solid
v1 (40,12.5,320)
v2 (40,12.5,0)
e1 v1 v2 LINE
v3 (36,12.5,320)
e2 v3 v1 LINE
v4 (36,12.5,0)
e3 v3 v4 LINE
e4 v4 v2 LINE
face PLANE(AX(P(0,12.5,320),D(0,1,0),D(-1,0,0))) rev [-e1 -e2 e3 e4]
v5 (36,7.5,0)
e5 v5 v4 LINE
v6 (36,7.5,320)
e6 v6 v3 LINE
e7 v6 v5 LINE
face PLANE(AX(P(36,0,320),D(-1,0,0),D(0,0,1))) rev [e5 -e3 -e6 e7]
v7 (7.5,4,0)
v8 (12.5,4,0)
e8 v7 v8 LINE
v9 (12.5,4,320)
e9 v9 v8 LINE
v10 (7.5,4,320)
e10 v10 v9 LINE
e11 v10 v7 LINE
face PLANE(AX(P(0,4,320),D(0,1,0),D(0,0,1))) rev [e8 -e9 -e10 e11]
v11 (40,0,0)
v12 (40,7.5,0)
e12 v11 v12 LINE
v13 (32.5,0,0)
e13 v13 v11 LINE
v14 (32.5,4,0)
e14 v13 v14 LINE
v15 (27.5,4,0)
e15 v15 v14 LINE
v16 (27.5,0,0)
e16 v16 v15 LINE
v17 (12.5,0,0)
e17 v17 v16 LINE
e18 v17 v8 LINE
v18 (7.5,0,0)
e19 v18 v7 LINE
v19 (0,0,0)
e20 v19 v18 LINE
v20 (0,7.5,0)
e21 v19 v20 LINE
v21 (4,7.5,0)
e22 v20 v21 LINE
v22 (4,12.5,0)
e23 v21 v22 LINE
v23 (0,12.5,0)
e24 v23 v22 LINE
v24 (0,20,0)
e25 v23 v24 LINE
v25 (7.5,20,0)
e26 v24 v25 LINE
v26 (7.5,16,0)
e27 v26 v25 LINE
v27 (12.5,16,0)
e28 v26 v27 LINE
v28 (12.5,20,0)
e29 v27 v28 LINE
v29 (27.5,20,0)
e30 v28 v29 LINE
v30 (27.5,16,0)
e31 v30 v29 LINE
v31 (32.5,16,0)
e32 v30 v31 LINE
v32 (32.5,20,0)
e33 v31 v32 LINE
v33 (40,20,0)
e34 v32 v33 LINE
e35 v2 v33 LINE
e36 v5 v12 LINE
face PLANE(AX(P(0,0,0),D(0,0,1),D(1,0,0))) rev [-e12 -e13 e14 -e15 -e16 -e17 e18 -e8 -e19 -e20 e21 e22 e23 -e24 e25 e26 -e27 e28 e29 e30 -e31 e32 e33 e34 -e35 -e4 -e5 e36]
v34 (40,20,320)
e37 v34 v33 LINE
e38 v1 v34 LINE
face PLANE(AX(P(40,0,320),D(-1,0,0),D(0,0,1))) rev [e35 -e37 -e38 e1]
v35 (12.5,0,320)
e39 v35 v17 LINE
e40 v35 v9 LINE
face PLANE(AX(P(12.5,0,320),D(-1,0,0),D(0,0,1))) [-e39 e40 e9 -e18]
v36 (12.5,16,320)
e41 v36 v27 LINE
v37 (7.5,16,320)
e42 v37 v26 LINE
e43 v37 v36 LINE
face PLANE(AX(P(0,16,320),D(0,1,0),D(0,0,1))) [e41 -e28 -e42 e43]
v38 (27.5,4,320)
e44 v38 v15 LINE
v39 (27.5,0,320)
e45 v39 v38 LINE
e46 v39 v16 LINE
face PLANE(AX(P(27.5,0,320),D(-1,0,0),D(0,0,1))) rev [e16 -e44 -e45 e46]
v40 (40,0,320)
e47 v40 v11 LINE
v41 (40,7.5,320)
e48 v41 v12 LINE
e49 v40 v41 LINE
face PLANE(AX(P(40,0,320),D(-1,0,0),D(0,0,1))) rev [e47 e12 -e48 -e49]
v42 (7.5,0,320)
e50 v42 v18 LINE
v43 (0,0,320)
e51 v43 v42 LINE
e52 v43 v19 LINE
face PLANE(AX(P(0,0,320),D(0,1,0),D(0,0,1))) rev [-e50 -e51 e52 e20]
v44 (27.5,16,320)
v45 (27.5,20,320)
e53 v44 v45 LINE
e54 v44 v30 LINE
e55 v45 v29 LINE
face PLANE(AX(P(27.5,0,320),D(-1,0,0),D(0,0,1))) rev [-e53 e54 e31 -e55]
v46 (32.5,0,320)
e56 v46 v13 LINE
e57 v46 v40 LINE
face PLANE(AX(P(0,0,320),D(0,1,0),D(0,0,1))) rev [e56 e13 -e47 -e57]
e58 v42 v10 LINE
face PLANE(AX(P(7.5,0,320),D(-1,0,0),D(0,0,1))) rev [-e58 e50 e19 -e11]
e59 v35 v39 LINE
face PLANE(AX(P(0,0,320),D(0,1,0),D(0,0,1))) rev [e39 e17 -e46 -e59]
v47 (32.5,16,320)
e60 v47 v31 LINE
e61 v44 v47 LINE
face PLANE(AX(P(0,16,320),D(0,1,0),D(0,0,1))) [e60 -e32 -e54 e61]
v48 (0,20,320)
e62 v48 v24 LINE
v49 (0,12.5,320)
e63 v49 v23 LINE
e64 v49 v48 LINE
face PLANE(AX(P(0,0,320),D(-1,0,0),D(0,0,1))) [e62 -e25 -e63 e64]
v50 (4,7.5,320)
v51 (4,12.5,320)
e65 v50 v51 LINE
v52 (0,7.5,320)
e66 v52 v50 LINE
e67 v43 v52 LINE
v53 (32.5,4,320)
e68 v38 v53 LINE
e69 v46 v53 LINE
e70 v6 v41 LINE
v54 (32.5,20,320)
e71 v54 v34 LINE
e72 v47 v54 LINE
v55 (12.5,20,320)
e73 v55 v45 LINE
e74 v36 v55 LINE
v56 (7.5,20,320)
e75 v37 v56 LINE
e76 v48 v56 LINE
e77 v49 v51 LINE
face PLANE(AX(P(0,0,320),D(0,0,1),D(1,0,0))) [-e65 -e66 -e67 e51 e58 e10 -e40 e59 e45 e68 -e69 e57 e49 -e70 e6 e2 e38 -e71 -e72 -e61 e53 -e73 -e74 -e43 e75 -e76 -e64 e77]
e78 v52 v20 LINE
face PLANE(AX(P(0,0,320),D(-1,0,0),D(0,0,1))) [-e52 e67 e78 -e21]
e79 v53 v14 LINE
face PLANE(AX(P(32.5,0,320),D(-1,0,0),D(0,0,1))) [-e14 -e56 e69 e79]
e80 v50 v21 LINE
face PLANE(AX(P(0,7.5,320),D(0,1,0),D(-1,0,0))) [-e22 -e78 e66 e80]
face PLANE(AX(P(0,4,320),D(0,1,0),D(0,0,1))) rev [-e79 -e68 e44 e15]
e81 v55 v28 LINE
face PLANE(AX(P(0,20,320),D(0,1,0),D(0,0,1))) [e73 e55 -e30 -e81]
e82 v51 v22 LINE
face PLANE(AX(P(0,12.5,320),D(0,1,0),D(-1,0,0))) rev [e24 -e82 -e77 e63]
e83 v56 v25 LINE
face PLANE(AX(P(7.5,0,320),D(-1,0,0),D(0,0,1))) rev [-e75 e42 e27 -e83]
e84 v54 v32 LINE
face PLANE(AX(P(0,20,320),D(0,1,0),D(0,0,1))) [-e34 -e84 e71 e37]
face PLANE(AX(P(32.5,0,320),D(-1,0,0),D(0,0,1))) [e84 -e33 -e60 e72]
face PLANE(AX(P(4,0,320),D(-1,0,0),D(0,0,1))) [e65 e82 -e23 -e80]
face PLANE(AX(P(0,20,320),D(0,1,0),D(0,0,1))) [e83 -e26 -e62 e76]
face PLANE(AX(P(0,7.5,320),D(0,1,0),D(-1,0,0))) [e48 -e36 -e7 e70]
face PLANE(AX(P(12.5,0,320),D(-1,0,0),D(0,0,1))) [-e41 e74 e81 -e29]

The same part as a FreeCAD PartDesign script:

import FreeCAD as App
import Part
import Sketcher

V = App.Vector
Q = App.Units.Quantity

doc = App.newDocument("Part")
body = doc.addObject("PartDesign::Body", "Body")

sketch1 = doc.addObject("Sketcher::SketchObject", "Sketch")
body.addObject(sketch1)
sketch1.AttachmentSupport = (doc.XY_Plane, [""])
sketch1.MapMode = "FlatFace"
sketch1.addGeometry(Part.LineSegment(V(7.5, 20, 0), V(0, 20, 0)), False)
sketch1.addGeometry(Part.LineSegment(V(0, 20, 0), V(0, 12.5, 0)), False)
sketch1.addGeometry(Part.LineSegment(V(0, 12.5, 0), V(4, 12.5, 0)), False)
sketch1.addGeometry(Part.LineSegment(V(4, 12.5, 0), V(4, 7.5, 0)), False)
sketch1.addGeometry(Part.LineSegment(V(4, 7.5, 0), V(0, 7.5, 0)), False)
sketch1.addGeometry(Part.LineSegment(V(0, 7.5, 0), V(0, 0, 0)), False)
sketch1.addGeometry(Part.LineSegment(V(0, 0, 0), V(7.5, 0, 0)), False)
sketch1.addGeometry(Part.LineSegment(V(7.5, 0, 0), V(7.5, 4, 0)), False)
sketch1.addGeometry(Part.LineSegment(V(7.5, 4, 0), V(12.5, 4, 0)), False)
sketch1.addGeometry(Part.LineSegment(V(12.5, 4, 0), V(12.5, 0, 0)), False)
sketch1.addGeometry(Part.LineSegment(V(12.5, 0, 0), V(27.5, 0, 0)), False)
sketch1.addGeometry(Part.LineSegment(V(27.5, 0, 0), V(27.5, 4, 0)), False)
sketch1.addGeometry(Part.LineSegment(V(27.5, 4, 0), V(32.5, 4, 0)), False)
sketch1.addGeometry(Part.LineSegment(V(32.5, 4, 0), V(32.5, 0, 0)), False)
sketch1.addGeometry(Part.LineSegment(V(32.5, 0, 0), V(40, 0, 0)), False)
sketch1.addGeometry(Part.LineSegment(V(40, 0, 0), V(40, 7.5, 0)), False)
sketch1.addGeometry(Part.LineSegment(V(40, 7.5, 0), V(36, 7.5, 0)), False)
sketch1.addGeometry(Part.LineSegment(V(36, 7.5, 0), V(36, 12.5, 0)), False)
sketch1.addGeometry(Part.LineSegment(V(36, 12.5, 0), V(40, 12.5, 0)), False)
sketch1.addGeometry(Part.LineSegment(V(40, 12.5, 0), V(40, 20, 0)), False)
sketch1.addGeometry(Part.LineSegment(V(40, 20, 0), V(32.5, 20, 0)), False)
sketch1.addGeometry(Part.LineSegment(V(32.5, 20, 0), V(32.5, 16, 0)), False)
sketch1.addGeometry(Part.LineSegment(V(32.5, 16, 0), V(27.5, 16, 0)), False)
sketch1.addGeometry(Part.LineSegment(V(27.5, 16, 0), V(27.5, 20, 0)), False)
sketch1.addGeometry(Part.LineSegment(V(27.5, 20, 0), V(12.5, 20, 0)), False)
sketch1.addGeometry(Part.LineSegment(V(12.5, 20, 0), V(12.5, 16, 0)), False)
sketch1.addGeometry(Part.LineSegment(V(12.5, 16, 0), V(7.5, 16, 0)), False)
sketch1.addGeometry(Part.LineSegment(V(7.5, 16, 0), V(7.5, 20, 0)), False)
sketch1.addConstraint(Sketcher.Constraint("Coincident", 0, 2, 1, 1))
sketch1.addConstraint(Sketcher.Constraint("Coincident", 1, 2, 2, 1))
sketch1.addConstraint(Sketcher.Constraint("Coincident", 2, 2, 3, 1))
sketch1.addConstraint(Sketcher.Constraint("Coincident", 3, 2, 4, 1))
sketch1.addConstraint(Sketcher.Constraint("Coincident", 4, 2, 5, 1))
sketch1.addConstraint(Sketcher.Constraint("Coincident", 5, 2, 6, 1))
sketch1.addConstraint(Sketcher.Constraint("Coincident", 6, 2, 7, 1))
sketch1.addConstraint(Sketcher.Constraint("Coincident", 7, 2, 8, 1))
sketch1.addConstraint(Sketcher.Constraint("Coincident", 8, 2, 9, 1))
sketch1.addConstraint(Sketcher.Constraint("Coincident", 9, 2, 10, 1))
sketch1.addConstraint(Sketcher.Constraint("Coincident", 10, 2, 11, 1))
sketch1.addConstraint(Sketcher.Constraint("Coincident", 11, 2, 12, 1))
sketch1.addConstraint(Sketcher.Constraint("Coincident", 12, 2, 13, 1))
sketch1.addConstraint(Sketcher.Constraint("Coincident", 13, 2, 14, 1))
sketch1.addConstraint(Sketcher.Constraint("Coincident", 14, 2, 15, 1))
sketch1.addConstraint(Sketcher.Constraint("Coincident", 15, 2, 16, 1))
sketch1.addConstraint(Sketcher.Constraint("Coincident", 16, 2, 17, 1))
sketch1.addConstraint(Sketcher.Constraint("Coincident", 17, 2, 18, 1))
sketch1.addConstraint(Sketcher.Constraint("Coincident", 18, 2, 19, 1))
sketch1.addConstraint(Sketcher.Constraint("Coincident", 19, 2, 20, 1))
sketch1.addConstraint(Sketcher.Constraint("Coincident", 20, 2, 21, 1))
sketch1.addConstraint(Sketcher.Constraint("Coincident", 21, 2, 22, 1))
sketch1.addConstraint(Sketcher.Constraint("Coincident", 22, 2, 23, 1))
sketch1.addConstraint(Sketcher.Constraint("Coincident", 23, 2, 24, 1))
sketch1.addConstraint(Sketcher.Constraint("Coincident", 24, 2, 25, 1))
sketch1.addConstraint(Sketcher.Constraint("Coincident", 25, 2, 26, 1))
sketch1.addConstraint(Sketcher.Constraint("Coincident", 26, 2, 27, 1))
sketch1.addConstraint(Sketcher.Constraint("Coincident", 27, 2, 0, 1))
sketch1.addConstraint(Sketcher.Constraint("Horizontal", 0))
sketch1.addConstraint(Sketcher.Constraint("Vertical", 1))
sketch1.addConstraint(Sketcher.Constraint("Horizontal", 2))
sketch1.addConstraint(Sketcher.Constraint("Vertical", 3))
sketch1.addConstraint(Sketcher.Constraint("Horizontal", 4))
sketch1.addConstraint(Sketcher.Constraint("Vertical", 5))
sketch1.addConstraint(Sketcher.Constraint("Horizontal", 6))
sketch1.addConstraint(Sketcher.Constraint("Vertical", 7))
sketch1.addConstraint(Sketcher.Constraint("Horizontal", 8))
sketch1.addConstraint(Sketcher.Constraint("Vertical", 9))
sketch1.addConstraint(Sketcher.Constraint("Horizontal", 10))
sketch1.addConstraint(Sketcher.Constraint("Vertical", 11))
sketch1.addConstraint(Sketcher.Constraint("Horizontal", 12))
sketch1.addConstraint(Sketcher.Constraint("Vertical", 13))
sketch1.addConstraint(Sketcher.Constraint("Horizontal", 14))
sketch1.addConstraint(Sketcher.Constraint("Vertical", 15))
sketch1.addConstraint(Sketcher.Constraint("Horizontal", 16))
sketch1.addConstraint(Sketcher.Constraint("Vertical", 17))
sketch1.addConstraint(Sketcher.Constraint("Horizontal", 18))
sketch1.addConstraint(Sketcher.Constraint("Vertical", 19))
sketch1.addConstraint(Sketcher.Constraint("Horizontal", 20))
sketch1.addConstraint(Sketcher.Constraint("Vertical", 21))
sketch1.addConstraint(Sketcher.Constraint("Horizontal", 22))
sketch1.addConstraint(Sketcher.Constraint("Vertical", 23))
sketch1.addConstraint(Sketcher.Constraint("Horizontal", 24))
sketch1.addConstraint(Sketcher.Constraint("Vertical", 25))
sketch1.addConstraint(Sketcher.Constraint("Horizontal", 26))
sketch1.addConstraint(Sketcher.Constraint("Vertical", 27))
sketch1.addConstraint(Sketcher.Constraint("Coincident", 5, 2, -1, 1))
sketch1.addConstraint(Sketcher.Constraint("PointOnObject", 0, 2, -2))
sketch1.addConstraint(Sketcher.Constraint("PointOnObject", 9, 2, -1))
sketch1.addConstraint(Sketcher.Constraint("PointOnObject", 13, 2, -1))
sketch1.addConstraint(Sketcher.Constraint("Horizontal", 8, 2, 11, 2))
sketch1.addConstraint(Sketcher.Constraint("Horizontal", 4, 2, 15, 2))
sketch1.addConstraint(Sketcher.Constraint("Horizontal", 2, 2, 17, 2))
sketch1.addConstraint(Sketcher.Constraint("Horizontal", 0, 2, 19, 2))
sketch1.addConstraint(Sketcher.Constraint("Horizontal", 20, 2, 23, 2))
sketch1.addConstraint(Sketcher.Constraint("Horizontal", 22, 2, 25, 2))
sketch1.addConstraint(Sketcher.Constraint("Vertical", 15, 2, 18, 2))
sketch1.addConstraint(Sketcher.Constraint("Vertical", 13, 2, 20, 2))
sketch1.addConstraint(Sketcher.Constraint("Vertical", 11, 2, 22, 2))
sketch1.addConstraint(Sketcher.Constraint("Vertical", 9, 2, 24, 2))
sketch1.addConstraint(Sketcher.Constraint("Vertical", 7, 2, 26, 2))
sketch1.addConstraint(Sketcher.Constraint("Equal", 8, 12))
sketch1.addConstraint(Sketcher.Constraint("Equal", 6, 14))
sketch1.addConstraint(Sketcher.Constraint("Equal", 4, 16))
sketch1.addConstraint(Sketcher.Constraint("Equal", 20, 1))
sketch1.addConstraint(Sketcher.Constraint("Equal", 26, 3))
sketch1.addConstraint(Sketcher.Constraint("Equal", 1, 5))
sketch1.addConstraint(Sketcher.Constraint("Equal", 18, 7))
sketch1.addConstraint(Sketcher.Constraint("Equal", 13, 21))
sketch1.addConstraint(Sketcher.Constraint("DistanceX", 2, 1, 2, 2, Q("4 mm")))
sketch1.addConstraint(Sketcher.Constraint("DistanceX", 8, 1, 8, 2, Q("5 mm")))
sketch1.addConstraint(Sketcher.Constraint("DistanceX", 10, 1, 10, 2, Q("15 mm")))
sketch1.addConstraint(Sketcher.Constraint("DistanceX", 0, 2, 0, 1, Q("7.5 mm")))
pad1 = doc.addObject("PartDesign::Pad", "Pad")
body.addObject(pad1)
pad1.Profile = sketch1
pad1.Length = 320

doc.recompute()
